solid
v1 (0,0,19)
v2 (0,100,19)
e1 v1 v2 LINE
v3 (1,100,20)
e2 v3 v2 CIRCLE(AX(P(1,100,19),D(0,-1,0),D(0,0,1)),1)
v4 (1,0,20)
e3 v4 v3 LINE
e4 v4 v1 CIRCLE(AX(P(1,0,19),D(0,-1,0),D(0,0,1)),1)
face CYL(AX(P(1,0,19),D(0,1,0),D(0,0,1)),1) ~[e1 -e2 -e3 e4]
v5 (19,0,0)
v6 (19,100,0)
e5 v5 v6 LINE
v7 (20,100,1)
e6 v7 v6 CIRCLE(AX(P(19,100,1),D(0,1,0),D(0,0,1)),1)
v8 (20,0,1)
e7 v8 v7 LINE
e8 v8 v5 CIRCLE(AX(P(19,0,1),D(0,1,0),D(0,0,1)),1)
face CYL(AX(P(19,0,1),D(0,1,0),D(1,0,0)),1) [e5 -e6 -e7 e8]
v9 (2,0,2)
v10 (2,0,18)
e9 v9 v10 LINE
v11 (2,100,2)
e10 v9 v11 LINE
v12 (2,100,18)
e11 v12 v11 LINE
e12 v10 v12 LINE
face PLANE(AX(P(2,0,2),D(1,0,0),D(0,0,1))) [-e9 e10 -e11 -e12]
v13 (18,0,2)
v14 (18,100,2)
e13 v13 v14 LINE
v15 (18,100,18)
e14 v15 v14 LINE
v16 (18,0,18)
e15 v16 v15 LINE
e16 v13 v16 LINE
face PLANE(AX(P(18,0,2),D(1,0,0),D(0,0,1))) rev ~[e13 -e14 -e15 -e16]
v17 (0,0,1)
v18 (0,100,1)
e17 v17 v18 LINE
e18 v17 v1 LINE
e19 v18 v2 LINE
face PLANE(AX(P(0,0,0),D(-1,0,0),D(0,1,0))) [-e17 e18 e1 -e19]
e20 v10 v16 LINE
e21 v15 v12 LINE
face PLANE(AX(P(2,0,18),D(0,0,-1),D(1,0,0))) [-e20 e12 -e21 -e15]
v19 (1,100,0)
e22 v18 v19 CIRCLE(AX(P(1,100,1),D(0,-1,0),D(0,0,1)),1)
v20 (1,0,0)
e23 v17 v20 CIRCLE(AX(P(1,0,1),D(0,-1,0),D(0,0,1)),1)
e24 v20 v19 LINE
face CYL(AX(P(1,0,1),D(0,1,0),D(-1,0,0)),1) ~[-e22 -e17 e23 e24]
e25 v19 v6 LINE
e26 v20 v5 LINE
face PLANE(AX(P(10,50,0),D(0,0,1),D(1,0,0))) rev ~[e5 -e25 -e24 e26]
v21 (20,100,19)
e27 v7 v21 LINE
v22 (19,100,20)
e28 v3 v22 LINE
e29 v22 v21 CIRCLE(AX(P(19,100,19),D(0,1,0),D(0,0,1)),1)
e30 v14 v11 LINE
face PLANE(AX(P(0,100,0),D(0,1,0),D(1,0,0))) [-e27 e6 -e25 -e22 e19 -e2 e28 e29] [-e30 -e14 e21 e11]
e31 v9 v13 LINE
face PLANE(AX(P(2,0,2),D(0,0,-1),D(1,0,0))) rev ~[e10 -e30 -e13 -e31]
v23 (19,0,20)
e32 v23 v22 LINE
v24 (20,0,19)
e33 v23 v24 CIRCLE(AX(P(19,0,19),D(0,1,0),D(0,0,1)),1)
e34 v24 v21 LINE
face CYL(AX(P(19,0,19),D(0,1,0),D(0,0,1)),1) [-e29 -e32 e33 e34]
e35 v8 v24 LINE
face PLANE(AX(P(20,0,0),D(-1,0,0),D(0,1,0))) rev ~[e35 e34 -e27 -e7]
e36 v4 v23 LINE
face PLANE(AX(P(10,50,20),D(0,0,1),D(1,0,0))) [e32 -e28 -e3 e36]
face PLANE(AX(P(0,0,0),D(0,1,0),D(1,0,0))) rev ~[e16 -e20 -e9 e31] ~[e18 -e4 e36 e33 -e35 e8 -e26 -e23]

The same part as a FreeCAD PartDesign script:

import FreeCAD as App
import Part
import Sketcher

V = App.Vector
Q = App.Units.Quantity


def edges_at(feature, points):
    """Names of the edges that pass closest to the given points."""
    edges = feature.Shape.Edges
    near = lambda p: min(range(len(edges)), key=lambda i: edges[i].distToShape(Part.Vertex(*p))[0])
    return sorted({f"Edge{near(p) + 1}" for p in points})


def add_polygon(sketch, points):
    """Adds a closed chain of lines whose ends are joined by coincident constraints."""
    first, n = sketch.GeometryCount, len(points)
    for a, b in zip(points, points[1:] + points[:1]):
        sketch.addGeometry(Part.LineSegment(App.Vector(*a, 0), App.Vector(*b, 0)), False)
    for i in range(n):
        sketch.addConstraint(Sketcher.Constraint("Coincident", first + i, 2, first + (i + 1) % n, 1))

doc = App.newDocument("Part")
params = doc.addObject("Spreadsheet::Sheet", "Params")
for row, (alias, value) in enumerate([
    ("sketch1_width", "20 mm"),
    ("sketch1_height", "100 mm"),
    ("pad1_length", "20 mm"),
    ("sketch2_width", "16 mm"),
    ("fillet_radius", "1 mm"),
    ("fillet2_radius", "1 mm"),
    ("fillet3_radius", "1 mm"),
], start=1):
    params.set(f"A{row}", alias)
    params.set(f"B{row}", "=" + value)
    params.setAlias(f"B{row}", alias)

body = doc.addObject("PartDesign::Body", "Body")

# Sketch on XY plane
sketch1 = body.newObject("Sketcher::SketchObject", "Sketch")
sketch1.AttachmentSupport = (doc.getObject("XY_Plane"), [""])
sketch1.MapMode = "FlatFace"
add_polygon(sketch1, [(0, 100), (0, 0), (20, 0), (20, 100)])  # lines 0-3
sketch1.addConstraint([
    Sketcher.Constraint("Vertical", 0),
    Sketcher.Constraint("Horizontal", 1),
    Sketcher.Constraint("Vertical", 2),
    Sketcher.Constraint("Horizontal", 3),
    Sketcher.Constraint("Coincident", 0, 2, -1, 1),
    Sketcher.Constraint("DistanceX", 1, 1, 1, 2, Q("20 mm")),
    Sketcher.Constraint("DistanceY", 0, 2, 0, 1, Q("100 mm")),
])
sketch1.setExpression("Constraints[9]", "Params.sketch1_width")
sketch1.setExpression("Constraints[10]", "Params.sketch1_height")
pad1 = body.newObject("PartDesign::Pad", "Pad")
pad1.Profile = sketch1
pad1.setExpression("Length", "Params.pad1_length")

# Sketch on XZ plane
sketch2 = body.newObject("Sketcher::SketchObject", "Sketch001")
sketch2.AttachmentSupport = (doc.getObject("XZ_Plane"), [""])
sketch2.MapMode = "FlatFace"
add_polygon(sketch2, [(2, 18), (2, 2), (18, 2), (18, 18)])  # lines 0-3
sketch2.addConstraint([
    Sketcher.Constraint("Vertical", 0),
    Sketcher.Constraint("Horizontal", 1),
    Sketcher.Constraint("Vertical", 2),
    Sketcher.Constraint("Horizontal", 3),
    Sketcher.Constraint("Equal", 3, 0),
    Sketcher.Constraint("DistanceX", 1, 1, 1, 2, Q("16 mm")),
    Sketcher.Constraint("DistanceX", -1, 1, 0, 2, Q("2 mm")),
    Sketcher.Constraint("DistanceY", -1, 1, 0, 2, Q("2 mm")),
])
sketch2.setExpression("Constraints[9]", "Params.sketch2_width")
pocket1 = body.newObject("PartDesign::Pocket", "Pocket")
pocket1.Profile = sketch2
pocket1.Type = "ThroughAll"
doc.recompute()

fillet = body.newObject("PartDesign::Fillet", "Fillet")
fillet.Base = (pocket1, edges_at(pocket1, [(20, 50, 20)]))
fillet.setExpression("Radius", "Params.fillet_radius")
doc.recompute()

fillet2 = body.newObject("PartDesign::Fillet", "Fillet001")
fillet2.Base = (fillet, edges_at(fillet, [(0, 50, 20)]))
fillet2.setExpression("Radius", "Params.fillet2_radius")
doc.recompute()

fillet3 = body.newObject("PartDesign::Fillet", "Fillet002")
fillet3.Base = (fillet2, edges_at(fillet2, [(0, 50, 0), (20, 50, 0)]))
fillet3.setExpression("Radius", "Params.fillet3_radius")

doc.recompute()
